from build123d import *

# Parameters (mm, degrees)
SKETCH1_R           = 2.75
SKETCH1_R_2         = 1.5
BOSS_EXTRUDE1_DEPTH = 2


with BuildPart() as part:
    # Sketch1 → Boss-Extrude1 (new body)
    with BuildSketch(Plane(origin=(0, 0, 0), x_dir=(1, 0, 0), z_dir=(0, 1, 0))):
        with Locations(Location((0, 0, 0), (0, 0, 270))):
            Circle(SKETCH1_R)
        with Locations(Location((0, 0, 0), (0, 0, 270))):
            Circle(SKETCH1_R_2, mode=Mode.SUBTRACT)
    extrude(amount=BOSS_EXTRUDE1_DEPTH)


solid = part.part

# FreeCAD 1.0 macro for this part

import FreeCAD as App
import Part
import Sketcher

V = App.Vector
Q = App.Units.Quantity

doc = App.newDocument("Part")
body = doc.addObject("PartDesign::Body", "Body")

# Sketch on XZ plane
sketch1 = body.newObject("Sketcher::SketchObject", "Sketch")
sketch1.AttachmentSupport = (doc.getObject("XZ_Plane"), [""])
sketch1.MapMode = "FlatFace"
sketch1.addGeometry(Part.Circle(V(0, 0, 0), V(0, 0, 1), 2.75), False)
sketch1.addGeometry(Part.Circle(V(0, 0, 0), V(0, 0, 1), 1.5), False)
sketch1.addConstraint(Sketcher.Constraint("Coincident", 0, 3, -1, 1))
sketch1.addConstraint(Sketcher.Constraint("Coincident", 1, 3, -1, 1))
sketch1.addConstraint(Sketcher.Constraint("Diameter", 1, Q("3 mm")))
sketch1.addConstraint(Sketcher.Constraint("Diameter", 0, Q("5.5 mm")))
pad1 = body.newObject("PartDesign::Pad", "Pad")
pad1.Profile = sketch1
pad1.Length = 2
pad1.Reversed = True

doc.recompute()
